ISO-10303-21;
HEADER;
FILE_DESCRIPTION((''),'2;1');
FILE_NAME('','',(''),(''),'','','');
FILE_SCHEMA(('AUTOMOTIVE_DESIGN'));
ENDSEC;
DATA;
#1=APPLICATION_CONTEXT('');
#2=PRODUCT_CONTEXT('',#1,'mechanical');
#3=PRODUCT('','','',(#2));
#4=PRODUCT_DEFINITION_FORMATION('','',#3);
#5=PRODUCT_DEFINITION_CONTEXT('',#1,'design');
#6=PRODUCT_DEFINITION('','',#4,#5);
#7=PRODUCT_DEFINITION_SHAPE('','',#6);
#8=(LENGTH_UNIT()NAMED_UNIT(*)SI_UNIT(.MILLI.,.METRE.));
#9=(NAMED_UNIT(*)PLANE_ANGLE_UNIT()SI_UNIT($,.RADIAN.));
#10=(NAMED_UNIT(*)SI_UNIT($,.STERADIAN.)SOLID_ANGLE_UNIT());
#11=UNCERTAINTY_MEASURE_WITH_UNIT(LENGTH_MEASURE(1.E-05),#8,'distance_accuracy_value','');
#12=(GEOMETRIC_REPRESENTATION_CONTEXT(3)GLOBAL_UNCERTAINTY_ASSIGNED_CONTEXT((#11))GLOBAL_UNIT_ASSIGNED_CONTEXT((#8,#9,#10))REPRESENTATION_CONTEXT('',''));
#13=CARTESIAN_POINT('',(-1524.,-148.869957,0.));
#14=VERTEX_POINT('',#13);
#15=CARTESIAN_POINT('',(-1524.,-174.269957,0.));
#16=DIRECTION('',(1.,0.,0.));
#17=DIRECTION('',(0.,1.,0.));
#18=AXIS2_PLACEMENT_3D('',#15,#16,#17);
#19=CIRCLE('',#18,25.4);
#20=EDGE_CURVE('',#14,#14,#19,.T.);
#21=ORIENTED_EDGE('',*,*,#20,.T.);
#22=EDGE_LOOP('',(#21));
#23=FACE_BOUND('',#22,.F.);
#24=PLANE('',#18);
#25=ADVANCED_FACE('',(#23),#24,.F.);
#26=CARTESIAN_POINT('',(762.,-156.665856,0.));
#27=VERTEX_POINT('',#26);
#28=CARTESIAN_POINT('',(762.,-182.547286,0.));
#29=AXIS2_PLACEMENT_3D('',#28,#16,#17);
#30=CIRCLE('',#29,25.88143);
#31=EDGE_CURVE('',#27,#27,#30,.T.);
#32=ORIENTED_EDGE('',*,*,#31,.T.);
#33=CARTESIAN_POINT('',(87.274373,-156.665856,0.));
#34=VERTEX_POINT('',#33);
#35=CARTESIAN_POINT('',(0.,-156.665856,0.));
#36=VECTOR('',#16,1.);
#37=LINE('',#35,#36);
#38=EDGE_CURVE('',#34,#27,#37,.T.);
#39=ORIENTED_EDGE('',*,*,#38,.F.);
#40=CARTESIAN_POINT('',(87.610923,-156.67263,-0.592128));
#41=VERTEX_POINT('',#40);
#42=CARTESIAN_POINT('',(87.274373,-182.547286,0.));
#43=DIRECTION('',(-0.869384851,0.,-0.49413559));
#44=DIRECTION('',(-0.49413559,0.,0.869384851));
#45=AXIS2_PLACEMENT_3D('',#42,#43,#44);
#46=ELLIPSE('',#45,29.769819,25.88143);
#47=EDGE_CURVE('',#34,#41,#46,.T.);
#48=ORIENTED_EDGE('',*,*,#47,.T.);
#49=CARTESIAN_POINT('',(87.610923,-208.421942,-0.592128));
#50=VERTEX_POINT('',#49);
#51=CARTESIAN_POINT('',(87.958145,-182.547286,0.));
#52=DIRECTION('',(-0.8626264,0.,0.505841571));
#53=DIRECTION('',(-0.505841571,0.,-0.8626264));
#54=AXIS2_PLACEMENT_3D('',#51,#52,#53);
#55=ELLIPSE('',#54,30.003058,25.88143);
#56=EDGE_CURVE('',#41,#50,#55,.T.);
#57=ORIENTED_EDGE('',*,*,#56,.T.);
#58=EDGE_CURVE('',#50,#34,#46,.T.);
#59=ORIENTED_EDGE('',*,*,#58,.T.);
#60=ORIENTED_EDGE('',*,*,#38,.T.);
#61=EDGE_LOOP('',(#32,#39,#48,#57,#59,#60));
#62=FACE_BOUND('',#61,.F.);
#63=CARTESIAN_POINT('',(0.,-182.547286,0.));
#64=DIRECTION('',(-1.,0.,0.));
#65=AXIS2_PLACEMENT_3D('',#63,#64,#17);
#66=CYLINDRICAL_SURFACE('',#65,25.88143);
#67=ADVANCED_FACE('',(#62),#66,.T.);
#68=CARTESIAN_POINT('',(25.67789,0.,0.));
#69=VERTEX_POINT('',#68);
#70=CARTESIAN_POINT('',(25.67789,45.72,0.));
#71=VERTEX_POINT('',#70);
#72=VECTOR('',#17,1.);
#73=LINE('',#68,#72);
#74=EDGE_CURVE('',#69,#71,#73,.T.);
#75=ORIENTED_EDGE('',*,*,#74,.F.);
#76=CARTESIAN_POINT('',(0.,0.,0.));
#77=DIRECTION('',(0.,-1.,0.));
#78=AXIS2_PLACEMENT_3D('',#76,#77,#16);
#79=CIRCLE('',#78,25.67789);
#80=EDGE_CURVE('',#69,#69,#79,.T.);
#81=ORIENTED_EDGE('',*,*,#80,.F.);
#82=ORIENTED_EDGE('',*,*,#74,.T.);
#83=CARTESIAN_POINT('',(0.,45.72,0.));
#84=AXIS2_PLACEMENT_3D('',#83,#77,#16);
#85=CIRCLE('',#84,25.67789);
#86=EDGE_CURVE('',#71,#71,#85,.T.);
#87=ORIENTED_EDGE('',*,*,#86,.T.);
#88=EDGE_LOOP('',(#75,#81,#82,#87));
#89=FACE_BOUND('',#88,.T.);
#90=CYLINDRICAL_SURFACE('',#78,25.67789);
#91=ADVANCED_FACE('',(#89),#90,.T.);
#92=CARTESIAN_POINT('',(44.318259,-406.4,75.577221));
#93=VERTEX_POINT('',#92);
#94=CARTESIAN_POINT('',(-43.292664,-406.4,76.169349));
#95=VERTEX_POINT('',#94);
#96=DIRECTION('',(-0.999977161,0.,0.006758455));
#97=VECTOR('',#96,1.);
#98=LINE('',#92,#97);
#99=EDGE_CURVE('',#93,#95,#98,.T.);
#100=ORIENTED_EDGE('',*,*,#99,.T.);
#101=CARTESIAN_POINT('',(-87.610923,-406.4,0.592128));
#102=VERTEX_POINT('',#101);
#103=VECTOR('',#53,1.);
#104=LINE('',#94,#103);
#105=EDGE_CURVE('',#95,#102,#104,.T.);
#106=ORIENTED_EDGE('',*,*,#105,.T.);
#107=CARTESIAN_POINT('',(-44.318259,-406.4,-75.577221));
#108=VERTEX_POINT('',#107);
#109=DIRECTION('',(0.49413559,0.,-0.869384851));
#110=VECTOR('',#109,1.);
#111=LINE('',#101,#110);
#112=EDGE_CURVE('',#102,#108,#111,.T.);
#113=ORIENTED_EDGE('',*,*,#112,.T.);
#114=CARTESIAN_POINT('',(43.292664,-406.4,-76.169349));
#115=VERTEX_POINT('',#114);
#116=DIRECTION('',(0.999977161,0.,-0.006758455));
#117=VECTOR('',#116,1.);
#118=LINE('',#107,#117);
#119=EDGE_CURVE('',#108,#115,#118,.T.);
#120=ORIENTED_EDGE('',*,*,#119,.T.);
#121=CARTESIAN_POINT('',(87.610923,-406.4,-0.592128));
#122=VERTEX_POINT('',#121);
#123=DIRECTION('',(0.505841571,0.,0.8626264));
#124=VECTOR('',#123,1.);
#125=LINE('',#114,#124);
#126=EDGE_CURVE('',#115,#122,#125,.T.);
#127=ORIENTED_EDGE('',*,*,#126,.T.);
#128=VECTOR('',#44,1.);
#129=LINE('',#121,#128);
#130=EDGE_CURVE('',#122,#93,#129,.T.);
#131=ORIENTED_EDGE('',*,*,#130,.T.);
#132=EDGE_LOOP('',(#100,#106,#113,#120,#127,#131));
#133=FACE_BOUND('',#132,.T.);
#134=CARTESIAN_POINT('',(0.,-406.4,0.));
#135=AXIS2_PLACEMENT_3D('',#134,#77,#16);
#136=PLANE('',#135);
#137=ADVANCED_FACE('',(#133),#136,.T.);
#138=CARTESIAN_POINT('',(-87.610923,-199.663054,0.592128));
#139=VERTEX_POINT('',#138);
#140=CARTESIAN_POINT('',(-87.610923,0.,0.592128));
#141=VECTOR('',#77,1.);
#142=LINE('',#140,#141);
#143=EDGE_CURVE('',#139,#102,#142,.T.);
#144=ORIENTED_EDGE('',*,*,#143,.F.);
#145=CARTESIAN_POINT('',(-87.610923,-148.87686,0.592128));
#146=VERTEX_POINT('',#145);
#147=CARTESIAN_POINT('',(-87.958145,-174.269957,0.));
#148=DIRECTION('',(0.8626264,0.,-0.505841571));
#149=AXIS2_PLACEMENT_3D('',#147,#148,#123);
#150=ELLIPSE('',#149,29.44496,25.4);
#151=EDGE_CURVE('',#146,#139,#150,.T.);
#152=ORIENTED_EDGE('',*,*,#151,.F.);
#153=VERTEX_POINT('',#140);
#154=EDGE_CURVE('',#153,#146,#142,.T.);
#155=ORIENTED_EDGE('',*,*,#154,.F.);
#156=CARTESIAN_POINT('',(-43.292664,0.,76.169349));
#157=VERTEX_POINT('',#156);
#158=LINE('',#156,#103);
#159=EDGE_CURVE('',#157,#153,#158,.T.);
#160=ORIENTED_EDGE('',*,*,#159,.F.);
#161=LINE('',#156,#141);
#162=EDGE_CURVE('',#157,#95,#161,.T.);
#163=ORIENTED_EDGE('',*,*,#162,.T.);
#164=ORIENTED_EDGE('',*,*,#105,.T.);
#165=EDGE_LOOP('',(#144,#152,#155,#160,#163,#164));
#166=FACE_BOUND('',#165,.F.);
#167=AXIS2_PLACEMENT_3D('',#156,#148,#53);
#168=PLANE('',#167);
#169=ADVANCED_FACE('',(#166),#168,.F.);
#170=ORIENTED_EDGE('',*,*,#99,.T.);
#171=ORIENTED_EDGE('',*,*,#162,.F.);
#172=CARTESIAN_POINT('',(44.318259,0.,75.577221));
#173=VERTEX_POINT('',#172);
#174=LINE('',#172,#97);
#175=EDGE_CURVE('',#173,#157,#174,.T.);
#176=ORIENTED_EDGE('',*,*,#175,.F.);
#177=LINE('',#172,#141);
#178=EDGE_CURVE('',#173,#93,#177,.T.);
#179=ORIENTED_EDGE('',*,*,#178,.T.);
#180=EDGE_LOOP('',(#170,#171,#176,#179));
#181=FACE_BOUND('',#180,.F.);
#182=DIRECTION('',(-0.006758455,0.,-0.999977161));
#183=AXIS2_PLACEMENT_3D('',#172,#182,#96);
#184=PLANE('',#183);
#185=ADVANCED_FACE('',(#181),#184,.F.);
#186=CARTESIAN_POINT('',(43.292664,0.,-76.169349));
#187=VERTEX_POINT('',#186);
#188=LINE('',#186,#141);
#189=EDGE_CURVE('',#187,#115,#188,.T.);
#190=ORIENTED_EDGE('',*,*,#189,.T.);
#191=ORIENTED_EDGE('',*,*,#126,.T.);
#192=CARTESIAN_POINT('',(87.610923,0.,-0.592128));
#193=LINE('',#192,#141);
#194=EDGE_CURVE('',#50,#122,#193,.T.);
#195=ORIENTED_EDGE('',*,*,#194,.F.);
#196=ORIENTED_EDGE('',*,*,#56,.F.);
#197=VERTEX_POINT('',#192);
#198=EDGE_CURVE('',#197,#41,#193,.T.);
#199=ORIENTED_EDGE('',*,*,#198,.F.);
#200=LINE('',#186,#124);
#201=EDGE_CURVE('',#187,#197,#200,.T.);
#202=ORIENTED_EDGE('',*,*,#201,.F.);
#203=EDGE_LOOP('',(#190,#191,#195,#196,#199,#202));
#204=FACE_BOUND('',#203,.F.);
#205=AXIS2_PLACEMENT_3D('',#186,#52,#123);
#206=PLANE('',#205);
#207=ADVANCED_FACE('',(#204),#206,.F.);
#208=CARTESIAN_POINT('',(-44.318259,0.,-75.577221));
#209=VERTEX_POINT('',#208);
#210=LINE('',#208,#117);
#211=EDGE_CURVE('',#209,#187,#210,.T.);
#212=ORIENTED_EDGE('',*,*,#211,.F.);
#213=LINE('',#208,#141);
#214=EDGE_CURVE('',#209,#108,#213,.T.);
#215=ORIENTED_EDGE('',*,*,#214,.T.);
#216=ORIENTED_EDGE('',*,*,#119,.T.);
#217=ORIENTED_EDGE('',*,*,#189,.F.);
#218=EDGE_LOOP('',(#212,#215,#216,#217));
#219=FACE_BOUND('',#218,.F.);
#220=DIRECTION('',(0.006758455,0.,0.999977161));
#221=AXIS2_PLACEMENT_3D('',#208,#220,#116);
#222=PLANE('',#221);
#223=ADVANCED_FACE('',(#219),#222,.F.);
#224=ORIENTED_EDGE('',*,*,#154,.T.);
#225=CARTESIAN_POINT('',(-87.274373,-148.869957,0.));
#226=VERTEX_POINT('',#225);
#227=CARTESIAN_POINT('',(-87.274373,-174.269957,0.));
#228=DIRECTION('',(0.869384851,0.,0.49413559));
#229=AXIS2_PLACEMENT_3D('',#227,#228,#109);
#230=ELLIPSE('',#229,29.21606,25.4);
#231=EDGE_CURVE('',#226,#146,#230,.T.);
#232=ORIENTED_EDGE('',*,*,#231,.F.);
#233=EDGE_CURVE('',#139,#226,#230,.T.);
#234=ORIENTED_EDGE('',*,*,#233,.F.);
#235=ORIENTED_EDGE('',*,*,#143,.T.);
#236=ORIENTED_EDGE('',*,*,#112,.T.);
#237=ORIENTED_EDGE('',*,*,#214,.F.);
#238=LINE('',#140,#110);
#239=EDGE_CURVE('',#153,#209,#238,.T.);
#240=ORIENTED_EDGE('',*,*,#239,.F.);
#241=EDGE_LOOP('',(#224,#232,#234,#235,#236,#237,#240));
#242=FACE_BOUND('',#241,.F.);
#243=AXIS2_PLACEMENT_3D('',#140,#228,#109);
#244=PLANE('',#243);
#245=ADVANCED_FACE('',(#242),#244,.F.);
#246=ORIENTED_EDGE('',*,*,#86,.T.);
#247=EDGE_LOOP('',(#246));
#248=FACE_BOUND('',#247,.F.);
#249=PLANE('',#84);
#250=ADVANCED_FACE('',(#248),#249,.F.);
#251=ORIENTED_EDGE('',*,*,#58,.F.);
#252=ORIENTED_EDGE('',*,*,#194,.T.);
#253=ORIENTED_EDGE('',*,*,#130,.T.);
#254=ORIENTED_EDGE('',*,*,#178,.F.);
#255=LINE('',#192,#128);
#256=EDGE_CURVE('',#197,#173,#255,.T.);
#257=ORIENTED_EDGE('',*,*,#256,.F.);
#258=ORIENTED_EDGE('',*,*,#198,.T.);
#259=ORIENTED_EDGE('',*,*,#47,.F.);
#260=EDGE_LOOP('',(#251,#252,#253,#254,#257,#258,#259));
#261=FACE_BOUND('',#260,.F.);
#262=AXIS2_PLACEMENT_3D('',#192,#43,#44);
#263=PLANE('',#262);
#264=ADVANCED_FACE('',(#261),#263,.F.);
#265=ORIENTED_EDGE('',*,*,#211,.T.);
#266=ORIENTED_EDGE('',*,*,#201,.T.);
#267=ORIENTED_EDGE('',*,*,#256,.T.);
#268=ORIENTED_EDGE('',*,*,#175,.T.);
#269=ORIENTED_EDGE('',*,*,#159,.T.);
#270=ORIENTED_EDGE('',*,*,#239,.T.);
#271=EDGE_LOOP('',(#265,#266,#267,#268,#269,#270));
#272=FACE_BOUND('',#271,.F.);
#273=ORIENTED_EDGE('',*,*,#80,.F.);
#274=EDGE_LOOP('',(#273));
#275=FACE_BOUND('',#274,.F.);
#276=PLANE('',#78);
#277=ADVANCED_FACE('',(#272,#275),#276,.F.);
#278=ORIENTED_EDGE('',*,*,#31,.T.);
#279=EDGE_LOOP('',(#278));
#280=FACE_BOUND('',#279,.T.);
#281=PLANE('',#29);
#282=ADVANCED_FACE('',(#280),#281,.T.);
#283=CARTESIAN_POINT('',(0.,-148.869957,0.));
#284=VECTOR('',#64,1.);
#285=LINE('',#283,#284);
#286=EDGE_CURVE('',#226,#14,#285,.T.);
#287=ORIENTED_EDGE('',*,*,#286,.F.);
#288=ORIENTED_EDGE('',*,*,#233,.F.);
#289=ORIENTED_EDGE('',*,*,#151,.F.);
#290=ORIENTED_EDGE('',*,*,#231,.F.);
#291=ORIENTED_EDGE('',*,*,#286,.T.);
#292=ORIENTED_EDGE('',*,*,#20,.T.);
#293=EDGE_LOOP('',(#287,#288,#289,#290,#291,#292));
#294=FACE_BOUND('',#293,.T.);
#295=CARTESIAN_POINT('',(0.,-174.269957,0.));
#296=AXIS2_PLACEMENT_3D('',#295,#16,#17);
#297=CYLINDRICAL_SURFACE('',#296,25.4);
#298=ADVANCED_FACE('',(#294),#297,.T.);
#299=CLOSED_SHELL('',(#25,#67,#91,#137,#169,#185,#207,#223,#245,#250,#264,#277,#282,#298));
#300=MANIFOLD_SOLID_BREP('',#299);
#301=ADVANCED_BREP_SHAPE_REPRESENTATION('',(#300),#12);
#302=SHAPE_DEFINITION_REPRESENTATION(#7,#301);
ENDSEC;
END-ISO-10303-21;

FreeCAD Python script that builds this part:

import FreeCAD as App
import Part
import Sketcher
Q = App.Units.Quantity

doc = App.newDocument("Part")
body = doc.addObject("PartDesign::Body", "Body")

# Sketch on XZ plane
sketch1 = doc.addObject("Sketcher::SketchObject", "Sketch")
body.addObject(sketch1)
sketch1.AttachmentSupport = (doc.XZ_Plane, [""])
sketch1.MapMode = "FlatFace"
sketch1.addGeometry([
    Part.LineSegment(App.Vector(43.292664, -76.169349, 0), App.Vector(87.610923, -0.592128, 0)),  # 0
    Part.LineSegment(App.Vector(87.610923, -0.592128, 0), App.Vector(44.318259, 75.577221, 0)),  # 1
    Part.LineSegment(App.Vector(44.318259, 75.577221, 0), App.Vector(-43.292664, 76.169349, 0)),  # 2
    Part.LineSegment(App.Vector(-43.292664, 76.169349, 0), App.Vector(-87.610923, 0.592128, 0)),  # 3
    Part.LineSegment(App.Vector(-87.610923, 0.592128, 0), App.Vector(-44.318259, -75.577221, 0)),  # 4
    Part.LineSegment(App.Vector(-44.318259, -75.577221, 0), App.Vector(43.292664, -76.169349, 0)),  # 5
], False)
sketch1.addConstraint([
    Sketcher.Constraint("Coincident", 0, 2, 1, 1),
    Sketcher.Constraint("Coincident", 1, 2, 2, 1),
    Sketcher.Constraint("Coincident", 2, 2, 3, 1),
    Sketcher.Constraint("Coincident", 3, 2, 4, 1),
    Sketcher.Constraint("Coincident", 4, 2, 5, 1),
    Sketcher.Constraint("Coincident", 5, 2, 0, 1),
    Sketcher.Constraint("Symmetric", 0, 2, 3, 2, -1, 1),
    Sketcher.Constraint("Symmetric", 1, 2, 4, 2, -1, 1),
    Sketcher.Constraint("Symmetric", 2, 2, 5, 2, -1, 1),
    Sketcher.Constraint("Equal", 0, 1),
    Sketcher.Constraint("Equal", 1, 2),
    Sketcher.Constraint("DistanceY", 5, 2, 2, 2, Q("152.338698 mm")),
    Sketcher.Constraint("DistanceX", -1, 1, 1, 2, Q("44.318259 mm")),
    Sketcher.Constraint("DistanceY", -1, 1, 1, 2, Q("75.577221 mm")),
    Sketcher.Constraint("DistanceY", 0, 2, 1, 2, Q("76.169349 mm")),
])
pad1 = doc.addObject("PartDesign::Pad", "Pad")
body.addObject(pad1)
pad1.Profile = sketch1
pad1.Length = Q("16 in")

# Sketch on YZ plane
sketch2 = doc.addObject("Sketcher::SketchObject", "Sketch001")
body.addObject(sketch2)
sketch2.AttachmentSupport = (doc.YZ_Plane, [""])
sketch2.MapMode = "FlatFace"
sketch2.addGeometry(Part.Circle(App.Vector(-182.547286, 0, 0), App.Vector(0, 0, 1), 25.88143), False)
sketch2.addConstraint([
    Sketcher.Constraint("PointOnObject", 0, 3, -1),
    Sketcher.Constraint("Diameter", 0, Q("51.76286 mm")),
    Sketcher.Constraint("DistanceX", 0, 3, -1, 1, Q("182.547286 mm")),
])
pad2 = doc.addObject("PartDesign::Pad", "Pad001")
body.addObject(pad2)
pad2.Profile = sketch2
pad2.Length = Q("30 in")

# Sketch on YZ plane
sketch3 = doc.addObject("Sketcher::SketchObject", "Sketch002")
body.addObject(sketch3)
sketch3.AttachmentSupport = (doc.YZ_Plane, [""])
sketch3.MapMode = "FlatFace"
sketch3.addGeometry(Part.Circle(App.Vector(-174.269957, 0, 0), App.Vector(0, 0, 1), 25.4), False)
sketch3.addConstraint([
    Sketcher.Constraint("PointOnObject", 0, 3, -1),
    Sketcher.Constraint("Diameter", 0, Q("2 in")),
    Sketcher.Constraint("DistanceX", 0, 3, -1, 1, Q("174.269957 mm")),
])
pad3 = doc.addObject("PartDesign::Pad", "Pad002")
body.addObject(pad3)
pad3.Profile = sketch3
pad3.Length = Q("60 in")
pad3.Reversed = True

# Sketch on XZ plane
sketch4 = doc.addObject("Sketcher::SketchObject", "Sketch003")
body.addObject(sketch4)
sketch4.AttachmentSupport = (doc.XZ_Plane, [""])
sketch4.MapMode = "FlatFace"
sketch4.addGeometry(Part.Circle(App.Vector(0, 0, 0), App.Vector(0, 0, 1), 25.67789), False)
sketch4.addConstraint([
    Sketcher.Constraint("Coincident", 0, 3, -1, 1),
    Sketcher.Constraint("Diameter", 0, Q("51.35578 mm")),
])
pad4 = doc.addObject("PartDesign::Pad", "Pad003")
body.addObject(pad4)
pad4.Profile = sketch4
pad4.Length = Q("1.8 in")
pad4.Reversed = True

doc.recompute()
